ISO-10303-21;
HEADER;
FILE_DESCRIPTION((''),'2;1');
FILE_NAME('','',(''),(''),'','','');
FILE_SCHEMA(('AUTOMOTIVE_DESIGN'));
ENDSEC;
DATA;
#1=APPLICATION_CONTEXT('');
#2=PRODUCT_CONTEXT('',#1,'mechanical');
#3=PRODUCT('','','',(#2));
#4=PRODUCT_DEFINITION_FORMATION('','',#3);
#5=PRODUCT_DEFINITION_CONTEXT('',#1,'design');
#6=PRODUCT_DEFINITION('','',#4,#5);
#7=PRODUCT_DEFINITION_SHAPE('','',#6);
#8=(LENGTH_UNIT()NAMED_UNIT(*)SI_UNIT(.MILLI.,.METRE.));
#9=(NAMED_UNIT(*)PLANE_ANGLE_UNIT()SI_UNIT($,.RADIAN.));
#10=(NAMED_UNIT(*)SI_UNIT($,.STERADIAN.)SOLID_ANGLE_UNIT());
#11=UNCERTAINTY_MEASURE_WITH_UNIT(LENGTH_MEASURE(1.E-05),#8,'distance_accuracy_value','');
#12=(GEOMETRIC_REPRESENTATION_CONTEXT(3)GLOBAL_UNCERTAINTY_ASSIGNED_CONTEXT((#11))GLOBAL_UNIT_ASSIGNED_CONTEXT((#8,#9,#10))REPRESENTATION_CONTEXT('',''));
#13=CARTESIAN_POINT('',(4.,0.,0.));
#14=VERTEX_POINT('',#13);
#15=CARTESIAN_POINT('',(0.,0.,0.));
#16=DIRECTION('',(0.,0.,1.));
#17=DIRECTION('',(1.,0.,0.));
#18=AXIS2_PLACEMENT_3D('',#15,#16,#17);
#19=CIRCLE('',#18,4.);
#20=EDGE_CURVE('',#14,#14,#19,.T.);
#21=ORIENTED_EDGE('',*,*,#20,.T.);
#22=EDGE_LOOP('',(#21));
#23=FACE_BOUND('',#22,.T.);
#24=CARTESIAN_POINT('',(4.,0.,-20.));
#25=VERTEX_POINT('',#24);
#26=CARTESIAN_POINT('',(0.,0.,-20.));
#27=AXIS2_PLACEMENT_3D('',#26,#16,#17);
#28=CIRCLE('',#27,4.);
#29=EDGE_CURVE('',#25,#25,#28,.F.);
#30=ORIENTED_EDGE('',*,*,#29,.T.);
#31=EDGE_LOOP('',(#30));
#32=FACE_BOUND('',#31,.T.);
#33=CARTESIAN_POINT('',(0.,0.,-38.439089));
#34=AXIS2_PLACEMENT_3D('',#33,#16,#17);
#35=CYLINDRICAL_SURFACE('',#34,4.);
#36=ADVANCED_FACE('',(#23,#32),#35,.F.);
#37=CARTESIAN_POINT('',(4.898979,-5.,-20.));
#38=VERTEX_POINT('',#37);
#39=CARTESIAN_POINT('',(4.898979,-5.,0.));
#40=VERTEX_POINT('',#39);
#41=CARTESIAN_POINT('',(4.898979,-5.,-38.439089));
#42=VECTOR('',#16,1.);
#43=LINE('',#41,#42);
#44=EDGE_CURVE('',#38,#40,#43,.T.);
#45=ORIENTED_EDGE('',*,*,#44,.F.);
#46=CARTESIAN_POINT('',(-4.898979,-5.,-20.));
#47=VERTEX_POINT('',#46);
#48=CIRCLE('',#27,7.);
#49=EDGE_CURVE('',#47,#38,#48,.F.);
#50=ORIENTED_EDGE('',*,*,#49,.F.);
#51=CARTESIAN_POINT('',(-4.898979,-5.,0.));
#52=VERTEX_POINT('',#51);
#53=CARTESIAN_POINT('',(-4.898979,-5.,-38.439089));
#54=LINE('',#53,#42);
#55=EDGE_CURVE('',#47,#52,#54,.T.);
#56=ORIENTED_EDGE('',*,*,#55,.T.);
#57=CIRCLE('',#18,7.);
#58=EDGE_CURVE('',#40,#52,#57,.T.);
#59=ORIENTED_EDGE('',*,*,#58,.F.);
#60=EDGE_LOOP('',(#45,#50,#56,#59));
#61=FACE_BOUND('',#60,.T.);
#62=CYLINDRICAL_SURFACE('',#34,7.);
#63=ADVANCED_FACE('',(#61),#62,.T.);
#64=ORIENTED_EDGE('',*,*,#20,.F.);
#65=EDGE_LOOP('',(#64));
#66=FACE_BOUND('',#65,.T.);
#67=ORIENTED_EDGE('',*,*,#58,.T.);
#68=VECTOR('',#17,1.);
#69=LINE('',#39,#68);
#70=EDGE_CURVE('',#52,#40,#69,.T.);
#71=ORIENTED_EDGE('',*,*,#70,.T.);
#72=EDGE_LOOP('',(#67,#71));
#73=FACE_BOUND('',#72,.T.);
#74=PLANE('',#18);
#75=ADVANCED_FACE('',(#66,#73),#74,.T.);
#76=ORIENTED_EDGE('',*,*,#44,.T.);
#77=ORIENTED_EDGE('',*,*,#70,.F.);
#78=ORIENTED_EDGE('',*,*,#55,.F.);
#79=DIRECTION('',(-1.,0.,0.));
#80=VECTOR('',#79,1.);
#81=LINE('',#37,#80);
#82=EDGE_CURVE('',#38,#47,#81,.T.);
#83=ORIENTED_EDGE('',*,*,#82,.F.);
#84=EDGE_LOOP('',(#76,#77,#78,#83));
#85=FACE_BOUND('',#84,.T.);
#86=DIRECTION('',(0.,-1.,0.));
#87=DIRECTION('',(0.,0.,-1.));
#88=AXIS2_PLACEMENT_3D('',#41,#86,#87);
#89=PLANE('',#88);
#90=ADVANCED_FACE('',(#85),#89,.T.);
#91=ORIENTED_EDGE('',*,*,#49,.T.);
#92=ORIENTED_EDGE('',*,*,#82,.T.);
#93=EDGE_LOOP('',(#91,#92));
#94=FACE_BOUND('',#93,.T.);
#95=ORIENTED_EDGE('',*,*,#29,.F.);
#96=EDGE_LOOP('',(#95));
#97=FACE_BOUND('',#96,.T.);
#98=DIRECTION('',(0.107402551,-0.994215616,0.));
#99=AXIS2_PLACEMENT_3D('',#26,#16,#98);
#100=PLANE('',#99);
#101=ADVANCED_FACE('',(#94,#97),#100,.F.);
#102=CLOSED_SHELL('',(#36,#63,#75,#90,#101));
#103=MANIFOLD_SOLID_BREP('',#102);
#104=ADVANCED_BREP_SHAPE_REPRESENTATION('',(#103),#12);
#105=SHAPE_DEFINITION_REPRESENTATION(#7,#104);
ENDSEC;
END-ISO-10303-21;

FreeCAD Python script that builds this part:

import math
import FreeCAD as App
import Part
import Sketcher

doc = App.newDocument("Part")
body = doc.addObject("PartDesign::Body", "Body")

sketch1 = doc.addObject("Sketcher::SketchObject", "Sketch")
body.addObject(sketch1)
sketch1.AttachmentSupport = (doc.XY_Plane, [""])
sketch1.MapMode = "FlatFace"
sketch1.addGeometry([
    Part.LineSegment(App.Vector(-4.9, -5, 0), App.Vector(4.9, -5, 0)),
    Part.ArcOfCircle(Part.Circle(App.Vector(0, 0, 0), App.Vector(0, 0, 1), 7), math.radians(-46), math.radians(226)),
    Part.Circle(App.Vector(0, 0, 0), App.Vector(0, 0, 1), 4),
], False)
sketch1.addConstraint([
    Sketcher.Constraint("Coincident", 0, 1, 1, 2),
    Sketcher.Constraint("Coincident", 1, 1, 0, 2),
    Sketcher.Constraint("Horizontal", 0),
    Sketcher.Constraint("Coincident", 1, 3, -1, 1),
    Sketcher.Constraint("Coincident", 2, 3, -1, 1),
    Sketcher.Constraint("Diameter", 2, 8.0),
    Sketcher.Constraint("Radius", 1, 7.0),
    Sketcher.Constraint("DistanceY", 0, 1, -1, 1, 5.0),
])
pad1 = doc.addObject("PartDesign::Pad", "Pad")
body.addObject(pad1)
pad1.Profile = sketch1
pad1.Length = 20
pad1.Reversed = True

doc.recompute()
